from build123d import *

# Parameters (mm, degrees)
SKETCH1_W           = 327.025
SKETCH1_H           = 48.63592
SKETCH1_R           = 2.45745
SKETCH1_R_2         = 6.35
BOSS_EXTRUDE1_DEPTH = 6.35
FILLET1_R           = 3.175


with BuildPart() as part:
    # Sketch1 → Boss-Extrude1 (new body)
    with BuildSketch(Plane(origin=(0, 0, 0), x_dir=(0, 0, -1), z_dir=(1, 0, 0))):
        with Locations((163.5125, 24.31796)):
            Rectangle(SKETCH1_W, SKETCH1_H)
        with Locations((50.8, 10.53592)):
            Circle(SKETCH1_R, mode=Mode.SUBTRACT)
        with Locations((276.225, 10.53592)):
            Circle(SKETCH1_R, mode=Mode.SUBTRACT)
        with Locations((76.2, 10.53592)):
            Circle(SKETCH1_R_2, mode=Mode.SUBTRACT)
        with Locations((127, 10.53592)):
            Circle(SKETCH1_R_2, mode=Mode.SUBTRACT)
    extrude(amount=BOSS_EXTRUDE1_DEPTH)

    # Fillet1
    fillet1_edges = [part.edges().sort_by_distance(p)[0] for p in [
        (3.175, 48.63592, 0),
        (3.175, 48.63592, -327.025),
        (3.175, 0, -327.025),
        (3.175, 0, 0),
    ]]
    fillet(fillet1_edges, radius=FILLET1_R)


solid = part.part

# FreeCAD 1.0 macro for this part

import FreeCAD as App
import Part
import Sketcher

V = App.Vector
Q = App.Units.Quantity


def edges_at(feature, points):
    """Names of the edges that pass closest to the given points."""
    edges = feature.Shape.Edges
    near = lambda p: min(range(len(edges)), key=lambda i: edges[i].distToShape(Part.Vertex(*p))[0])
    return sorted({f"Edge{near(p) + 1}" for p in points})


def add_polygon(sketch, points):
    """Adds a closed chain of lines whose ends are joined by coincident constraints."""
    first, n = sketch.GeometryCount, len(points)
    for a, b in zip(points, points[1:] + points[:1]):
        sketch.addGeometry(Part.LineSegment(App.Vector(*a, 0), App.Vector(*b, 0)), False)
    for i in range(n):
        sketch.addConstraint(Sketcher.Constraint("Coincident", first + i, 2, first + (i + 1) % n, 1))

doc = App.newDocument("Part")
body = doc.addObject("PartDesign::Body", "Body")

# Sketch on YZ plane
sketch1 = doc.addObject("Sketcher::SketchObject", "Sketch")
body.addObject(sketch1)
sketch1.AttachmentSupport = (doc.YZ_Plane, [""])
sketch1.MapMode = "FlatFace"
add_polygon(sketch1, [(48.6, 0), (0, 0), (0, -327), (48.6, -327)])  # lines 0-3
sketch1.addGeometry(Part.Circle(V(10.5, -50.8, 0), V(0, 0, 1), 2.5), False)  # 4
sketch1.addGeometry(Part.Circle(V(10.5, -76.2, 0), V(0, 0, 1), 6.3), False)  # 5
sketch1.addGeometry(Part.Circle(V(10.5, -127, 0), V(0, 0, 1), 6.3), False)  # 6
sketch1.addGeometry(Part.Circle(V(10.5, -276.2, 0), V(0, 0, 1), 2.5), False)  # 7
sketch1.addConstraint([
    Sketcher.Constraint("Horizontal", 0),
    Sketcher.Constraint("Vertical", 1),
    Sketcher.Constraint("Horizontal", 2),
    Sketcher.Constraint("Vertical", 3),
    Sketcher.Constraint("Coincident", 0, 2, -1, 1),
    Sketcher.Constraint("Equal", 5, 6),
    Sketcher.Constraint("Equal", 4, 7),
    Sketcher.Constraint("Vertical", 4, 3, 5, 3),
    Sketcher.Constraint("Vertical", 5, 3, 6, 3),
    Sketcher.Constraint("Vertical", 6, 3, 7, 3),
    Sketcher.Constraint("Diameter", 5, Q("0.5 in")),
    Sketcher.Constraint("DistanceY", 4, 3, -1, 1, Q("2 in")),
    Sketcher.Constraint("DistanceY", 5, 3, -1, 1, Q("3 in")),
    Sketcher.Constraint("DistanceY", 6, 3, -1, 1, Q("5 in")),
    Sketcher.Constraint("DistanceY", 1, 2, 7, 3, Q("2 in")),
    Sketcher.Constraint("Diameter", 4, Q("0.1935 in")),
    Sketcher.Constraint("DistanceX", 7, 3, 2, 2, Q("1.5 in")),
    Sketcher.Constraint("DistanceY", 1, 2, 1, 1, Q("12.875 in")),
    Sketcher.Constraint("DistanceX", 0, 2, 0, 1, Q("1.9148 in")),
])
pad1 = doc.addObject("PartDesign::Pad", "Pad")
body.addObject(pad1)
pad1.Profile = sketch1
pad1.Length = Q("0.25 in")
doc.recompute()

fillet = doc.addObject("PartDesign::Fillet", "Fillet")
body.addObject(fillet)
fillet.Base = (pad1, edges_at(pad1, [
    (3.175, 48.636, 0),
    (3.175, 48.636, -327.025),
    (3.175, 0, -327.025),
    (3.175, 0, 0),
]))
fillet.Radius = Q("0.125 in")

doc.recompute()
